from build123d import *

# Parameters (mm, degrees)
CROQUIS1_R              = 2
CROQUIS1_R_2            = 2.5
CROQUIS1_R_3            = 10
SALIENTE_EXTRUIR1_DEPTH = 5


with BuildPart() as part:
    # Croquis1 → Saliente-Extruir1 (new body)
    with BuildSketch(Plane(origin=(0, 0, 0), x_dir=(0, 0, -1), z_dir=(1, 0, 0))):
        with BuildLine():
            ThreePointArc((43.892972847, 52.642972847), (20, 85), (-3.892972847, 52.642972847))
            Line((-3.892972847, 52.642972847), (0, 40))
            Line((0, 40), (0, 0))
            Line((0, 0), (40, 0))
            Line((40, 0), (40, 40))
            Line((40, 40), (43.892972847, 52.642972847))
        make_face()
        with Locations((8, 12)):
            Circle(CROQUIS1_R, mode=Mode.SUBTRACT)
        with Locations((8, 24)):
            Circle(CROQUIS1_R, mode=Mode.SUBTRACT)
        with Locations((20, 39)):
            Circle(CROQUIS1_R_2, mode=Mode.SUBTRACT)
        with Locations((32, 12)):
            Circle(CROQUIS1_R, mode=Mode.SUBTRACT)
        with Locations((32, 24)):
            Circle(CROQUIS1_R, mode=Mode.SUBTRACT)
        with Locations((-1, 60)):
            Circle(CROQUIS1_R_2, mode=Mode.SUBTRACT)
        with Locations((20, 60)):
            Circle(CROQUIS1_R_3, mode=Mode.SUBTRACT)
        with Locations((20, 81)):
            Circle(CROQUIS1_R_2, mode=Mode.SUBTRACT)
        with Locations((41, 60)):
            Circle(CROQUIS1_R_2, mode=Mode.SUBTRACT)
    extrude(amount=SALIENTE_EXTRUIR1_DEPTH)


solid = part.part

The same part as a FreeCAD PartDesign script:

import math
import FreeCAD as App
import Part
import Sketcher

doc = App.newDocument("Part")
body = doc.addObject("PartDesign::Body", "Body")

# Sketch on YZ plane
sketch1 = doc.addObject("Sketcher::SketchObject", "Sketch")
body.addObject(sketch1)
sketch1.AttachmentSupport = (doc.YZ_Plane, [""])
sketch1.MapMode = "FlatFace"
sketch1.addGeometry(Part.ArcOfCircle(Part.Circle(App.Vector(60, -20, 0), App.Vector(0, 0, 1), 25), math.radians(-107), math.radians(107)), False)
sketch1.addGeometry(Part.LineSegment(App.Vector(52.6, 3.9, 0), App.Vector(40, 0, 0)), False)
sketch1.addGeometry(Part.LineSegment(App.Vector(40, 0, 0), App.Vector(0, 0, 0)), False)
sketch1.addGeometry(Part.LineSegment(App.Vector(0, 0, 0), App.Vector(0, -40, 0)), False)
sketch1.addGeometry(Part.LineSegment(App.Vector(0, -40, 0), App.Vector(40, -40, 0)), False)
sketch1.addGeometry(Part.LineSegment(App.Vector(40, -40, 0), App.Vector(52.6, -43.9, 0)), False)
sketch1.addGeometry(Part.Circle(App.Vector(12, -8, 0), App.Vector(0, 0, 1), 2), False)
sketch1.addGeometry(Part.Circle(App.Vector(24, -8, 0), App.Vector(0, 0, 1), 2), False)
sketch1.addGeometry(Part.Circle(App.Vector(12, -32, 0), App.Vector(0, 0, 1), 2), False)
sketch1.addGeometry(Part.Circle(App.Vector(24, -32, 0), App.Vector(0, 0, 1), 2), False)
sketch1.addGeometry(Part.Circle(App.Vector(39, -20, 0), App.Vector(0, 0, 1), 2.5), False)
sketch1.addGeometry(Part.Circle(App.Vector(60, 1, 0), App.Vector(0, 0, 1), 2.5), False)
sketch1.addGeometry(Part.Circle(App.Vector(60, -20, 0), App.Vector(0, 0, 1), 10), False)
sketch1.addGeometry(Part.Circle(App.Vector(60, -41, 0), App.Vector(0, 0, 1), 2.5), False)
sketch1.addGeometry(Part.Circle(App.Vector(81, -20, 0), App.Vector(0, 0, 1), 2.5), False)
sketch1.addConstraint(Sketcher.Constraint("Tangent", 0, 2, 1, 1))
sketch1.addConstraint(Sketcher.Constraint("Coincident", 1, 2, 2, 1))
sketch1.addConstraint(Sketcher.Constraint("Coincident", 2, 2, 3, 1))
sketch1.addConstraint(Sketcher.Constraint("Coincident", 3, 2, 4, 1))
sketch1.addConstraint(Sketcher.Constraint("Coincident", 4, 2, 5, 1))
sketch1.addConstraint(Sketcher.Constraint("Tangent", 5, 2, 0, 1))
sketch1.addConstraint(Sketcher.Constraint("Horizontal", 2))
sketch1.addConstraint(Sketcher.Constraint("Vertical", 3))
sketch1.addConstraint(Sketcher.Constraint("Horizontal", 4))
sketch1.addConstraint(Sketcher.Constraint("Coincident", 2, 2, -1, 1))
sketch1.addConstraint(Sketcher.Constraint("Coincident", 12, 3, 0, 3))
sketch1.addConstraint(Sketcher.Constraint("Equal", 6, 7))
sketch1.addConstraint(Sketcher.Constraint("Equal", 7, 8))
sketch1.addConstraint(Sketcher.Constraint("Equal", 8, 9))
sketch1.addConstraint(Sketcher.Constraint("Equal", 10, 11))
sketch1.addConstraint(Sketcher.Constraint("Equal", 11, 13))
sketch1.addConstraint(Sketcher.Constraint("Equal", 13, 14))
sketch1.addConstraint(Sketcher.Constraint("Horizontal", 6, 3, 7, 3))
sketch1.addConstraint(Sketcher.Constraint("Horizontal", 8, 3, 9, 3))
sketch1.addConstraint(Sketcher.Constraint("Horizontal", 0, 3, 10, 3))
sketch1.addConstraint(Sketcher.Constraint("Horizontal", 12, 3, 14, 3))
sketch1.addConstraint(Sketcher.Constraint("Vertical", 6, 3, 8, 3))
sketch1.addConstraint(Sketcher.Constraint("Vertical", 7, 3, 9, 3))
sketch1.addConstraint(Sketcher.Constraint("Vertical", 0, 3, 11, 3))
sketch1.addConstraint(Sketcher.Constraint("Vertical", 12, 3, 13, 3))
sketch1.addConstraint(Sketcher.Constraint("Vertical", 1, 2, 4, 2))
sketch1.addConstraint(Sketcher.Constraint("Vertical", 0, 2, 5, 2))
sketch1.addConstraint(Sketcher.Constraint("Equal", 4, 3))
sketch1.addConstraint(Sketcher.Constraint("Diameter", 6, 4.0))
sketch1.addConstraint(Sketcher.Constraint("Diameter", 10, 5.0))
sketch1.addConstraint(Sketcher.Constraint("Diameter", 12, 20.0))
sketch1.addConstraint(Sketcher.Constraint("Radius", 0, 25.0))
sketch1.addConstraint(Sketcher.Constraint("DistanceX", 2, 2, 2, 1, 40.0))
sketch1.addConstraint(Sketcher.Constraint("DistanceX", -1, 1, 0, 3, 60.0))
sketch1.addConstraint(Sketcher.Constraint("DistanceX", -1, 1, 6, 3, 12.0))
sketch1.addConstraint(Sketcher.Constraint("DistanceY", 6, 3, -1, 1, 8.0))
sketch1.addConstraint(Sketcher.Constraint("DistanceX", -1, 1, 7, 3, 24.0))
sketch1.addConstraint(Sketcher.Constraint("DistanceY", 8, 3, -1, 1, 32.0))
sketch1.addConstraint(Sketcher.Constraint("DistanceX", -1, 1, 10, 3, 39.0))
sketch1.addConstraint(Sketcher.Constraint("DistanceY", -1, 1, 11, 3, 1.0))
sketch1.addConstraint(Sketcher.Constraint("DistanceY", 13, 3, -1, 1, 41.0))
sketch1.addConstraint(Sketcher.Constraint("DistanceX", -1, 1, 14, 3, 81.0))
pad1 = doc.addObject("PartDesign::Pad", "Pad")
body.addObject(pad1)
pad1.Profile = sketch1
pad1.Length = 5

doc.recompute()
